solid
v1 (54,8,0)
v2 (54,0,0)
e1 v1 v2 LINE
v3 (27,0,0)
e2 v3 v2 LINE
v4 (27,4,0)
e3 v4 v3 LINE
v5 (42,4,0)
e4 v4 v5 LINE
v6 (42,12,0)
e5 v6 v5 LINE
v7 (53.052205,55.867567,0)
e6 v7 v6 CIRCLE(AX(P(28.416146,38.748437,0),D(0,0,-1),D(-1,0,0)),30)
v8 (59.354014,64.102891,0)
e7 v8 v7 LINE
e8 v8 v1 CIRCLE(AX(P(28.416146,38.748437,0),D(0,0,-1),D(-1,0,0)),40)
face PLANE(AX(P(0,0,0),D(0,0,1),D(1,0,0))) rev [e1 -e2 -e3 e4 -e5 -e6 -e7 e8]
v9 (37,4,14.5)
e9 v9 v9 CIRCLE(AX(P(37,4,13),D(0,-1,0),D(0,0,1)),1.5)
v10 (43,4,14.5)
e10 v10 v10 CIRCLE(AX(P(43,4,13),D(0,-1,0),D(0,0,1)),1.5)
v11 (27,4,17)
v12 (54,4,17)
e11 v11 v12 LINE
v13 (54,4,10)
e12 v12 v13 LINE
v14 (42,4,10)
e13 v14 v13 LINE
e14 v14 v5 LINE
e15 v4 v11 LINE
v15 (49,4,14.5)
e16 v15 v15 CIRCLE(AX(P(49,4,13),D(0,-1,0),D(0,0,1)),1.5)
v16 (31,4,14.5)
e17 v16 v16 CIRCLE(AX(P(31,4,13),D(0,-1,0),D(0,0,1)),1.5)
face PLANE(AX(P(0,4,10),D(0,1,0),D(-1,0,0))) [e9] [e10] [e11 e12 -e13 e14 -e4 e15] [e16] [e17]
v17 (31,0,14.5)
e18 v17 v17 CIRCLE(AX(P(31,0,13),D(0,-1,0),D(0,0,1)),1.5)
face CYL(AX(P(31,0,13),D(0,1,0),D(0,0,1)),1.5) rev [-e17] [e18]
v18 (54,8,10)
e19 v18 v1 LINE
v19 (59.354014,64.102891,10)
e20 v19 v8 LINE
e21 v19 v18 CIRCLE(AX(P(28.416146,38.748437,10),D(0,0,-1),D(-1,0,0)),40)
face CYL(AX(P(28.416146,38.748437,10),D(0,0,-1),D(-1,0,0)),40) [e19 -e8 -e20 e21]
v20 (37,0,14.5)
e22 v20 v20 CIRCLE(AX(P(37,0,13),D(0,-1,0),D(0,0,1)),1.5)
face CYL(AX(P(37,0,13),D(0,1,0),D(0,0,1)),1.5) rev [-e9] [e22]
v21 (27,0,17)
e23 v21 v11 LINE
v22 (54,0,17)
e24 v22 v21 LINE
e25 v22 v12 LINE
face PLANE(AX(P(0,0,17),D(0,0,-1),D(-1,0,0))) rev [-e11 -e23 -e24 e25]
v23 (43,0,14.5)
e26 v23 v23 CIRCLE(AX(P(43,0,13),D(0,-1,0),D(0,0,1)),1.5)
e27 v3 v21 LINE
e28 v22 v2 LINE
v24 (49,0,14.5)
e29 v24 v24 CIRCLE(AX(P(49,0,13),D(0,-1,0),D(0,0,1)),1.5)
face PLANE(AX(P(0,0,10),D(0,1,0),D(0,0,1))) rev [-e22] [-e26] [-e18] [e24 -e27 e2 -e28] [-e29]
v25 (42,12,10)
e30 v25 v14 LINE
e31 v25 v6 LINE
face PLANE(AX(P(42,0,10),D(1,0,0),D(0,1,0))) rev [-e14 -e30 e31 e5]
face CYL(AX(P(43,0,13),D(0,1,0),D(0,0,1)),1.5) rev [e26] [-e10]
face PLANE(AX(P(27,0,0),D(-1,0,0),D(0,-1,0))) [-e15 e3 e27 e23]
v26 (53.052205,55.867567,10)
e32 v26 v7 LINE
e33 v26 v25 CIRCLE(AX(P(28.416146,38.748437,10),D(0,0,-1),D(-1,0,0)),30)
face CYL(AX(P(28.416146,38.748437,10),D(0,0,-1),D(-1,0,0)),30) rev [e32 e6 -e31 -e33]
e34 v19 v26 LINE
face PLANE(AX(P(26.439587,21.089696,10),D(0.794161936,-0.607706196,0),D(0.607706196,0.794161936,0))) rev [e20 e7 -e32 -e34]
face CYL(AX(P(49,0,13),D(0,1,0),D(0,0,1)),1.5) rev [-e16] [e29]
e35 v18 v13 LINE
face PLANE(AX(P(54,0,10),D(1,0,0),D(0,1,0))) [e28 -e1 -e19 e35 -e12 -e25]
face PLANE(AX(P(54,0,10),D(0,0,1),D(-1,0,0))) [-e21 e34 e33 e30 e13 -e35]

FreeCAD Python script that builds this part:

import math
import FreeCAD as App
import Part
import Sketcher
from FreeCAD import Vector


def add_polygon(sketch, points):
    """Adds a closed chain of lines whose ends are joined by coincident constraints."""
    first, n = sketch.GeometryCount, len(points)
    for a, b in zip(points, points[1:] + points[:1]):
        sketch.addGeometry(Part.LineSegment(App.Vector(*a, 0), App.Vector(*b, 0)), False)
    for i in range(n):
        sketch.addConstraint(Sketcher.Constraint("Coincident", first + i, 2, first + (i + 1) % n, 1))

doc = App.newDocument("Part")
params = doc.addObject("Spreadsheet::Sheet", "Params")
for row, (alias, value) in enumerate([
    ("sketch1_radius", "40 mm"),
    ("sketch1_radius2", "30 mm"),
    ("sketch1_width", "27 mm"),
    ("sketch1_width2", "15 mm"),
    ("sketch1_height", "8 mm"),
    ("pad1_length", "10 mm"),
    ("sketch2_width", "27 mm"),
    ("sketch2_height", "4 mm"),
    ("pad2_length", "17 mm"),
    ("sketch3_diameter", "3 mm"),
    ("pocket1_length", "4 mm"),
    ("pocket2_length", "15 mm"),
    ("pocket2_length2", "27 mm"),
], start=1):
    params.set(f"A{row}", alias)
    params.set(f"B{row}", "=" + value)
    params.setAlias(f"B{row}", alias)

body = doc.addObject("PartDesign::Body", "Body")

# Sketch on XY plane
sketch1 = body.newObject("Sketcher::SketchObject", "Sketch")
sketch1.AttachmentSupport = (doc.getObject("XY_Plane"), [""])
sketch1.MapMode = "FlatFace"
sketch1.addGeometry(Part.LineSegment(Vector(0.9, 55.9, 0), Vector(-5.4, 64.1, 0)), False)
sketch1.addGeometry(Part.ArcOfCircle(Part.Circle(Vector(25.6, 38.7, 0), Vector(0, 0, 1), 40), math.radians(141), math.radians(230)), False)
sketch1.addGeometry(Part.LineSegment(Vector(0, 8, 0), Vector(0, 0, 0)), False)
sketch1.addGeometry(Part.LineSegment(Vector(0, 0, 0), Vector(27, 0, 0)), False)
sketch1.addGeometry(Part.LineSegment(Vector(27, 0, 0), Vector(27, 4, 0)), False)
sketch1.addGeometry(Part.LineSegment(Vector(27, 4, 0), Vector(12, 4, 0)), False)
sketch1.addGeometry(Part.LineSegment(Vector(12, 4, 0), Vector(12, 12, 0)), False)
sketch1.addGeometry(Part.ArcOfCircle(Part.Circle(Vector(25.6, 38.7, 0), Vector(0, 0, 1), 30), math.radians(145), math.radians(243)), False)
sketch1.addConstraint(Sketcher.Constraint("Coincident", 0, 2, 1, 1))
sketch1.addConstraint(Sketcher.Constraint("Coincident", 1, 2, 2, 1))
sketch1.addConstraint(Sketcher.Constraint("Coincident", 2, 2, 3, 1))
sketch1.addConstraint(Sketcher.Constraint("Coincident", 3, 2, 4, 1))
sketch1.addConstraint(Sketcher.Constraint("Coincident", 4, 2, 5, 1))
sketch1.addConstraint(Sketcher.Constraint("Coincident", 5, 2, 6, 1))
sketch1.addConstraint(Sketcher.Constraint("Coincident", 6, 2, 7, 2))
sketch1.addConstraint(Sketcher.Constraint("Coincident", 7, 1, 0, 1))
sketch1.addConstraint(Sketcher.Constraint("Vertical", 2))
sketch1.addConstraint(Sketcher.Constraint("Horizontal", 3))
sketch1.addConstraint(Sketcher.Constraint("Vertical", 4))
sketch1.addConstraint(Sketcher.Constraint("Horizontal", 5))
sketch1.addConstraint(Sketcher.Constraint("Vertical", 6))
sketch1.addConstraint(Sketcher.Constraint("Coincident", 2, 2, -1, 1))
sketch1.addConstraint(Sketcher.Constraint("Coincident", 7, 3, 1, 3))
sketch1.addConstraint(Sketcher.Constraint("Equal", 2, 6))
sketch1.addConstraint(Sketcher.Constraint("Radius", 1, 40.0))
sketch1.addConstraint(Sketcher.Constraint("Radius", 7, 30.0))
sketch1.addConstraint(Sketcher.Constraint("DistanceX", 3, 1, 3, 2, 27.0))
sketch1.addConstraint(Sketcher.Constraint("DistanceX", 5, 2, 5, 1, 15.0))
sketch1.addConstraint(Sketcher.Constraint("DistanceY", 2, 2, 2, 1, 8.0))
sketch1.addConstraint(Sketcher.Constraint("DistanceY", 4, 1, 4, 2, 4.0))
sketch1.addConstraint(Sketcher.Constraint("Distance", 0, 10.369829))
sketch1.addConstraint(Sketcher.Constraint("DistanceY", -1, 1, 0, 2, 64.102891))
sketch1.setExpression("Constraints[16]", "Params.sketch1_radius")
sketch1.setExpression("Constraints[17]", "Params.sketch1_radius2")
sketch1.setExpression("Constraints[18]", "Params.sketch1_width")
sketch1.setExpression("Constraints[19]", "Params.sketch1_width2")
sketch1.setExpression("Constraints[20]", "Params.sketch1_height")
pad1 = body.newObject("PartDesign::Pad", "Pad")
pad1.Profile = sketch1
pad1.setExpression("Length", "Params.pad1_length")

# Sketch on XY plane
sketch2 = body.newObject("Sketcher::SketchObject", "Sketch001")
sketch2.AttachmentSupport = (doc.getObject("XY_Plane"), [""])
sketch2.MapMode = "FlatFace"
add_polygon(sketch2, [(0, 4), (0, 0), (27, 0), (27, 4)])  # lines 0-3
sketch2.addConstraint(Sketcher.Constraint("Vertical", 0))
sketch2.addConstraint(Sketcher.Constraint("Horizontal", 1))
sketch2.addConstraint(Sketcher.Constraint("Vertical", 2))
sketch2.addConstraint(Sketcher.Constraint("Horizontal", 3))
sketch2.addConstraint(Sketcher.Constraint("Coincident", 0, 2, -1, 1))
sketch2.addConstraint(Sketcher.Constraint("DistanceX", 1, 1, 1, 2, 27.0))
sketch2.addConstraint(Sketcher.Constraint("DistanceY", 0, 2, 0, 1, 4.0))
sketch2.setExpression("Constraints[9]", "Params.sketch2_width")
sketch2.setExpression("Constraints[10]", "Params.sketch2_height")
pad2 = body.newObject("PartDesign::Pad", "Pad001")
pad2.Profile = sketch2
pad2.setExpression("Length", "Params.pad2_length")

# Sketch on XZ plane
sketch3 = body.newObject("Sketcher::SketchObject", "Sketch002")
sketch3.AttachmentSupport = (doc.getObject("XZ_Plane"), [""])
sketch3.MapMode = "FlatFace"
sketch3.AttachmentOffset = App.Placement(Vector(0, 0, -4), App.Rotation())
sketch3.addGeometry(Part.Circle(Vector(5, 13, 0), Vector(0, 0, 1), 1.5), False)
sketch3.addGeometry(Part.Circle(Vector(11, 13, 0), Vector(0, 0, 1), 1.5), False)
sketch3.addGeometry(Part.Circle(Vector(17, 13, 0), Vector(0, 0, 1), 1.5), False)
sketch3.addGeometry(Part.Circle(Vector(23, 13, 0), Vector(0, 0, 1), 1.5), False)
sketch3.addConstraint(Sketcher.Constraint("Equal", 0, 1))
sketch3.addConstraint(Sketcher.Constraint("Equal", 1, 2))
sketch3.addConstraint(Sketcher.Constraint("Equal", 2, 3))
sketch3.addConstraint(Sketcher.Constraint("Horizontal", 0, 3, 1, 3))
sketch3.addConstraint(Sketcher.Constraint("Horizontal", 1, 3, 2, 3))
sketch3.addConstraint(Sketcher.Constraint("Horizontal", 2, 3, 3, 3))
sketch3.addConstraint(Sketcher.Constraint("Diameter", 0, 3.0))
sketch3.addConstraint(Sketcher.Constraint("DistanceX", -1, 1, 0, 3, 5.0))
sketch3.addConstraint(Sketcher.Constraint("DistanceY", -1, 1, 0, 3, 13.0))
sketch3.addConstraint(Sketcher.Constraint("DistanceX", -1, 1, 1, 3, 11.0))
sketch3.addConstraint(Sketcher.Constraint("DistanceX", -1, 1, 2, 3, 17.0))
sketch3.addConstraint(Sketcher.Constraint("DistanceX", -1, 1, 3, 3, 23.0))
sketch3.setExpression("Constraints[6]", "Params.sketch3_diameter")
pocket1 = body.newObject("PartDesign::Pocket", "Pocket")
pocket1.Profile = sketch3
pocket1.setExpression("Length", "Params.pocket1_length")
pocket1.Reversed = True
doc.recompute()

datumplane = body.newObject("PartDesign::Plane", "DatumPlane")
datumplane.AttachmentSupport = (doc.getObject("YZ_Plane"), [""])
datumplane.MapMode = "FlatFace"
datumplane.AttachmentOffset = App.Placement(Vector(0, 0, 27), App.Rotation())
mirrored = body.newObject("PartDesign::Mirrored", "Mirrored")
mirrored.Originals = [pad1, pad2, pocket1]
mirrored.MirrorPlane = (datumplane, [""])
body.Tip = mirrored

# Sketch on YZ plane
sketch4 = body.newObject("Sketcher::SketchObject", "Sketch003")
sketch4.AttachmentSupport = (doc.getObject("YZ_Plane"), [""])
sketch4.MapMode = "FlatFace"
add_polygon(sketch4, [(67, -4), (-3, -4), (-3, 21), (67, 21)])  # lines 0-3
sketch4.addConstraint(Sketcher.Constraint("Horizontal", 0))
sketch4.addConstraint(Sketcher.Constraint("Vertical", 1))
sketch4.addConstraint(Sketcher.Constraint("Horizontal", 2))
sketch4.addConstraint(Sketcher.Constraint("Vertical", 3))
sketch4.addConstraint(Sketcher.Constraint("DistanceY", 1, 1, 1, 2, 24.801401))
sketch4.addConstraint(Sketcher.Constraint("DistanceX", 0, 2, 0, 1, 70.149949))
sketch4.addConstraint(Sketcher.Constraint("DistanceY", 0, 2, -1, 1, 3.900701))
sketch4.addConstraint(Sketcher.Constraint("DistanceX", -1, 1, 2, 2, 66.854872))
pocket2 = body.newObject("PartDesign::Pocket", "Pocket001")
pocket2.Profile = sketch4
pocket2.Type = "TwoLengths"
pocket2.setExpression("Length", "Params.pocket2_length")
pocket2.setExpression("Length2", "Params.pocket2_length2")

doc.recompute()
